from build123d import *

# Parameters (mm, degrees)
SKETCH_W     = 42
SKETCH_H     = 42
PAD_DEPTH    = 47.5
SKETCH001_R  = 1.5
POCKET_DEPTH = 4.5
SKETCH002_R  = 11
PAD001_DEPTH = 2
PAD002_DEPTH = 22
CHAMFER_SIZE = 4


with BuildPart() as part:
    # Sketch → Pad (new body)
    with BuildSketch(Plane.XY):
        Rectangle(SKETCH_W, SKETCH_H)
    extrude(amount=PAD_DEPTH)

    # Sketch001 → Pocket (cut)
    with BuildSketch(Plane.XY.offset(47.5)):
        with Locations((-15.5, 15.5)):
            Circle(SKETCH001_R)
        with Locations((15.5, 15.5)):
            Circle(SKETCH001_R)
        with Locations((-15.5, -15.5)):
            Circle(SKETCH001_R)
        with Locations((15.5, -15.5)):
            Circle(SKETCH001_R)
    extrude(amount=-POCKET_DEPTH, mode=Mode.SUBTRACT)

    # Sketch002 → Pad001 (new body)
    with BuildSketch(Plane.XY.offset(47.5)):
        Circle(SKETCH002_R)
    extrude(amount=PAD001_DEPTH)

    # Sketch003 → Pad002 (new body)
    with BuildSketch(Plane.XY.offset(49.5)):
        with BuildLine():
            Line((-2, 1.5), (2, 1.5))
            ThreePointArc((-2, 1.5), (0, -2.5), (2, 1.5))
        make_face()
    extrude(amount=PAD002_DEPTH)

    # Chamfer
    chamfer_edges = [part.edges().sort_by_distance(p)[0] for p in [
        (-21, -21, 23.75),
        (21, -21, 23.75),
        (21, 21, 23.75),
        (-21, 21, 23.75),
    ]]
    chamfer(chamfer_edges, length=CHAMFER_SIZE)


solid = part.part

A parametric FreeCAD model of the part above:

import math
import FreeCAD as App
import Part
import Sketcher
Q = App.Units.Quantity


def edges_at(feature, points):
    """Names of the edges that pass closest to the given points."""
    edges = feature.Shape.Edges
    near = lambda p: min(range(len(edges)), key=lambda i: edges[i].distToShape(Part.Vertex(*p))[0])
    return sorted({f"Edge{near(p) + 1}" for p in points})


def add_polygon(sketch, points):
    """Adds a closed chain of lines whose ends are joined by coincident constraints."""
    first, n = sketch.GeometryCount, len(points)
    for a, b in zip(points, points[1:] + points[:1]):
        sketch.addGeometry(Part.LineSegment(App.Vector(*a, 0), App.Vector(*b, 0)), False)
    for i in range(n):
        sketch.addConstraint(Sketcher.Constraint("Coincident", first + i, 2, first + (i + 1) % n, 1))

doc = App.newDocument("Part")
params = doc.addObject("Spreadsheet::Sheet", "Params")
for row, (alias, value) in enumerate([
    ("sketch1_width", "42 mm"),
    ("pad1_length", "47.5 mm"),
    ("sketch2_diameter", "3 mm"),
    ("pocket1_length", "4.5 mm"),
    ("sketch3_diameter", "22 mm"),
    ("pad2_length", "2 mm"),
    ("sketch4_radius", "2.5 mm"),
    ("sketch4_width", "4 mm"),
    ("pad3_length", "22 mm"),
    ("chamfer_size", "4 mm"),
], start=1):
    params.set(f"A{row}", alias)
    params.set(f"B{row}", "=" + value)
    params.setAlias(f"B{row}", alias)

body = doc.addObject("PartDesign::Body", "Body")

# Sketch on XY plane
sketch1 = doc.addObject("Sketcher::SketchObject", "Sketch")
body.addObject(sketch1)
sketch1.AttachmentSupport = (doc.XY_Plane, [""])
sketch1.MapMode = "FlatFace"
add_polygon(sketch1, [(-21, 21), (-21, -21), (21, -21), (21, 21)])  # lines 0-3
sketch1.addConstraint([
    Sketcher.Constraint("Vertical", 0),
    Sketcher.Constraint("Horizontal", 1),
    Sketcher.Constraint("Vertical", 2),
    Sketcher.Constraint("Horizontal", 3),
    Sketcher.Constraint("Symmetric", 0, 2, 2, 2, -1, 1),
    Sketcher.Constraint("Equal", 3, 0),
    Sketcher.Constraint("DistanceX", 1, 1, 1, 2, Q("42 mm")),
])
sketch1.setExpression("Constraints[10]", "Params.sketch1_width")
pad1 = doc.addObject("PartDesign::Pad", "Pad")
body.addObject(pad1)
pad1.Profile = sketch1
pad1.setExpression("Length", "Params.pad1_length")

# Sketch on XY plane
sketch2 = doc.addObject("Sketcher::SketchObject", "Sketch001")
body.addObject(sketch2)
sketch2.AttachmentSupport = (doc.XY_Plane, [""])
sketch2.MapMode = "FlatFace"
sketch2.AttachmentOffset = App.Placement(App.Vector(0, 0, 47.5), App.Rotation())
sketch2.addGeometry([
    Part.Circle(App.Vector(-15.5, 15.5, 0), App.Vector(0, 0, 1), 1.5),
    Part.Circle(App.Vector(15.5, 15.5, 0), App.Vector(0, 0, 1), 1.5),
    Part.Circle(App.Vector(-15.5, -15.5, 0), App.Vector(0, 0, 1), 1.5),
    Part.Circle(App.Vector(15.5, -15.5, 0), App.Vector(0, 0, 1), 1.5),
], False)
sketch2.addConstraint([
    Sketcher.Constraint("Equal", 0, 1),
    Sketcher.Constraint("Equal", 1, 2),
    Sketcher.Constraint("Equal", 2, 3),
    Sketcher.Constraint("Symmetric", 1, 3, 2, 3, -1, 1),
    Sketcher.Constraint("Symmetric", 0, 3, 3, 3, -1, 1),
    Sketcher.Constraint("Symmetric", 0, 3, 1, 3, -2),
    Sketcher.Constraint("Diameter", 0, Q("3 mm")),
    Sketcher.Constraint("DistanceX", 0, 3, 1, 3, Q("31 mm")),
    Sketcher.Constraint("DistanceY", 2, 3, 0, 3, Q("31 mm")),
])
sketch2.setExpression("Constraints[6]", "Params.sketch2_diameter")
pocket1 = doc.addObject("PartDesign::Pocket", "Pocket")
body.addObject(pocket1)
pocket1.Profile = sketch2
pocket1.setExpression("Length", "Params.pocket1_length")

# Sketch on XY plane
sketch3 = doc.addObject("Sketcher::SketchObject", "Sketch002")
body.addObject(sketch3)
sketch3.AttachmentSupport = (doc.XY_Plane, [""])
sketch3.MapMode = "FlatFace"
sketch3.AttachmentOffset = App.Placement(App.Vector(0, 0, 47.5), App.Rotation())
sketch3.addGeometry(Part.Circle(App.Vector(0, 0, 0), App.Vector(0, 0, 1), 11), False)
sketch3.addConstraint([
    Sketcher.Constraint("Coincident", 0, 3, -1, 1),
    Sketcher.Constraint("Diameter", 0, Q("22 mm")),
])
sketch3.setExpression("Constraints[1]", "Params.sketch3_diameter")
pad2 = doc.addObject("PartDesign::Pad", "Pad001")
body.addObject(pad2)
pad2.Profile = sketch3
pad2.setExpression("Length", "Params.pad2_length")

# Sketch on XY plane
sketch4 = doc.addObject("Sketcher::SketchObject", "Sketch003")
body.addObject(sketch4)
sketch4.AttachmentSupport = (doc.XY_Plane, [""])
sketch4.MapMode = "FlatFace"
sketch4.AttachmentOffset = App.Placement(App.Vector(0, 0, 49.5), App.Rotation())
sketch4.addGeometry([
    Part.LineSegment(App.Vector(2, 1.5, 0), App.Vector(-2, 1.5, 0)),
    Part.ArcOfCircle(Part.Circle(App.Vector(0, 0, 0), App.Vector(0, 0, 1), 2.5), math.radians(143), math.radians(397)),
], False)
sketch4.addConstraint([
    Sketcher.Constraint("Coincident", 0, 1, 1, 2),
    Sketcher.Constraint("Coincident", 1, 1, 0, 2),
    Sketcher.Constraint("Horizontal", 0),
    Sketcher.Constraint("Coincident", 1, 3, -1, 1),
    Sketcher.Constraint("Radius", 1, Q("2.5 mm")),
    Sketcher.Constraint("DistanceX", 0, 2, 0, 1, Q("4 mm")),
])
sketch4.setExpression("Constraints[4]", "Params.sketch4_radius")
sketch4.setExpression("Constraints[5]", "Params.sketch4_width")
pad3 = doc.addObject("PartDesign::Pad", "Pad002")
body.addObject(pad3)
pad3.Profile = sketch4
pad3.setExpression("Length", "Params.pad3_length")
doc.recompute()

chamfer = doc.addObject("PartDesign::Chamfer", "Chamfer")
body.addObject(chamfer)
chamfer.Base = (pad3, edges_at(pad3, [
    (-21, -21, 23.75),
    (21, -21, 23.75),
    (21, 21, 23.75),
    (-21, 21, 23.75),
]))
chamfer.setExpression("Size", "Params.chamfer_size")

doc.recompute()
